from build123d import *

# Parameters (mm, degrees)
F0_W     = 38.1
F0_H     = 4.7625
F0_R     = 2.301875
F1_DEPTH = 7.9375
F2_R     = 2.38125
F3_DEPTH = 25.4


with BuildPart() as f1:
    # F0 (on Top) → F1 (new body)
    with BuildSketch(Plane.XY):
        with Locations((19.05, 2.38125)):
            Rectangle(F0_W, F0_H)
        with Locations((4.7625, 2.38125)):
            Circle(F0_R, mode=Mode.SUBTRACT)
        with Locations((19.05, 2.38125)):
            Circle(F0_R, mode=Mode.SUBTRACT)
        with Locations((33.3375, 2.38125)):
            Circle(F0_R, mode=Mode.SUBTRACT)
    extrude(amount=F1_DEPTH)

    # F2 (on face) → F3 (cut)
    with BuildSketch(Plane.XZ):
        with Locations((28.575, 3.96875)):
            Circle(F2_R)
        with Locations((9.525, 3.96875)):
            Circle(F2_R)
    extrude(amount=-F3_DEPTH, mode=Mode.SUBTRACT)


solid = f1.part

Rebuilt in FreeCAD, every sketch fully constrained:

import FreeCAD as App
import Part
import Sketcher

V = App.Vector
Q = App.Units.Quantity

doc = App.newDocument("Part")
body = doc.addObject("PartDesign::Body", "Body")

sketch1 = body.newObject("Sketcher::SketchObject", "Sketch")
sketch1.AttachmentSupport = (doc.getObject("XY_Plane"), [""])
sketch1.MapMode = "FlatFace"
sketch1.addGeometry(Part.LineSegment(V(0, 4.8, 0), V(0, 0, 0)), False)
sketch1.addGeometry(Part.LineSegment(V(0, 0, 0), V(38.1, 0, 0)), False)
sketch1.addGeometry(Part.LineSegment(V(38.1, 0, 0), V(38.1, 4.8, 0)), False)
sketch1.addGeometry(Part.LineSegment(V(38.1, 4.8, 0), V(0, 4.8, 0)), False)
sketch1.addGeometry(Part.Circle(V(4.8, 2.4, 0), V(0, 0, 1), 2.3), False)
sketch1.addGeometry(Part.Circle(V(19.1, 2.4, 0), V(0, 0, 1), 2.3), False)
sketch1.addGeometry(Part.Circle(V(33.3, 2.4, 0), V(0, 0, 1), 2.3), False)
sketch1.addConstraint(Sketcher.Constraint("Coincident", 0, 2, 1, 1))
sketch1.addConstraint(Sketcher.Constraint("Coincident", 1, 2, 2, 1))
sketch1.addConstraint(Sketcher.Constraint("Coincident", 2, 2, 3, 1))
sketch1.addConstraint(Sketcher.Constraint("Coincident", 3, 2, 0, 1))
sketch1.addConstraint(Sketcher.Constraint("Vertical", 0))
sketch1.addConstraint(Sketcher.Constraint("Horizontal", 1))
sketch1.addConstraint(Sketcher.Constraint("Vertical", 2))
sketch1.addConstraint(Sketcher.Constraint("Horizontal", 3))
sketch1.addConstraint(Sketcher.Constraint("Coincident", 0, 2, -1, 1))
sketch1.addConstraint(Sketcher.Constraint("Equal", 4, 5))
sketch1.addConstraint(Sketcher.Constraint("Equal", 5, 6))
sketch1.addConstraint(Sketcher.Constraint("Horizontal", 4, 3, 5, 3))
sketch1.addConstraint(Sketcher.Constraint("Horizontal", 5, 3, 6, 3))
sketch1.addConstraint(Sketcher.Constraint("DistanceX", 1, 1, 1, 2, Q("1.5 in")))
sketch1.addConstraint(Sketcher.Constraint("DistanceY", 0, 2, 0, 1, Q("0.1875 in")))
sketch1.addConstraint(Sketcher.Constraint("DistanceX", -1, 1, 5, 3, Q("0.75 in")))
sketch1.addConstraint(Sketcher.Constraint("Diameter", 4, Q("4.60375 mm")))
sketch1.addConstraint(Sketcher.Constraint("DistanceX", -1, 1, 4, 3, Q("0.1875 in")))
sketch1.addConstraint(Sketcher.Constraint("DistanceY", -1, 1, 4, 3, Q("0.09375 in")))
sketch1.addConstraint(Sketcher.Constraint("DistanceX", -1, 1, 6, 3, Q("1.3125 in")))
pad1 = body.newObject("PartDesign::Pad", "Pad")
pad1.Profile = sketch1
pad1.Length = Q("0.3125 in")

sketch2 = body.newObject("Sketcher::SketchObject", "Sketch001")
sketch2.AttachmentSupport = (doc.getObject("XZ_Plane"), [""])
sketch2.MapMode = "FlatFace"
sketch2.addGeometry(Part.Circle(V(28.6, 4, 0), V(0, 0, 1), 2.4), False)
sketch2.addGeometry(Part.Circle(V(9.5, 4, 0), V(0, 0, 1), 2.4), False)
sketch2.addConstraint(Sketcher.Constraint("Equal", 0, 1))
sketch2.addConstraint(Sketcher.Constraint("Horizontal", 0, 3, 1, 3))
sketch2.addConstraint(Sketcher.Constraint("Diameter", 0, Q("0.1875 in")))
sketch2.addConstraint(Sketcher.Constraint("DistanceX", 1, 3, 0, 3, Q("0.75 in")))
sketch2.addConstraint(Sketcher.Constraint("DistanceX", -1, 1, 0, 3, Q("1.125 in")))
sketch2.addConstraint(Sketcher.Constraint("DistanceY", -1, 1, 0, 3, Q("0.15625 in")))
pocket1 = body.newObject("PartDesign::Pocket", "Pocket")
pocket1.Profile = sketch2
pocket1.Length = Q("1 in")

doc.recompute()
